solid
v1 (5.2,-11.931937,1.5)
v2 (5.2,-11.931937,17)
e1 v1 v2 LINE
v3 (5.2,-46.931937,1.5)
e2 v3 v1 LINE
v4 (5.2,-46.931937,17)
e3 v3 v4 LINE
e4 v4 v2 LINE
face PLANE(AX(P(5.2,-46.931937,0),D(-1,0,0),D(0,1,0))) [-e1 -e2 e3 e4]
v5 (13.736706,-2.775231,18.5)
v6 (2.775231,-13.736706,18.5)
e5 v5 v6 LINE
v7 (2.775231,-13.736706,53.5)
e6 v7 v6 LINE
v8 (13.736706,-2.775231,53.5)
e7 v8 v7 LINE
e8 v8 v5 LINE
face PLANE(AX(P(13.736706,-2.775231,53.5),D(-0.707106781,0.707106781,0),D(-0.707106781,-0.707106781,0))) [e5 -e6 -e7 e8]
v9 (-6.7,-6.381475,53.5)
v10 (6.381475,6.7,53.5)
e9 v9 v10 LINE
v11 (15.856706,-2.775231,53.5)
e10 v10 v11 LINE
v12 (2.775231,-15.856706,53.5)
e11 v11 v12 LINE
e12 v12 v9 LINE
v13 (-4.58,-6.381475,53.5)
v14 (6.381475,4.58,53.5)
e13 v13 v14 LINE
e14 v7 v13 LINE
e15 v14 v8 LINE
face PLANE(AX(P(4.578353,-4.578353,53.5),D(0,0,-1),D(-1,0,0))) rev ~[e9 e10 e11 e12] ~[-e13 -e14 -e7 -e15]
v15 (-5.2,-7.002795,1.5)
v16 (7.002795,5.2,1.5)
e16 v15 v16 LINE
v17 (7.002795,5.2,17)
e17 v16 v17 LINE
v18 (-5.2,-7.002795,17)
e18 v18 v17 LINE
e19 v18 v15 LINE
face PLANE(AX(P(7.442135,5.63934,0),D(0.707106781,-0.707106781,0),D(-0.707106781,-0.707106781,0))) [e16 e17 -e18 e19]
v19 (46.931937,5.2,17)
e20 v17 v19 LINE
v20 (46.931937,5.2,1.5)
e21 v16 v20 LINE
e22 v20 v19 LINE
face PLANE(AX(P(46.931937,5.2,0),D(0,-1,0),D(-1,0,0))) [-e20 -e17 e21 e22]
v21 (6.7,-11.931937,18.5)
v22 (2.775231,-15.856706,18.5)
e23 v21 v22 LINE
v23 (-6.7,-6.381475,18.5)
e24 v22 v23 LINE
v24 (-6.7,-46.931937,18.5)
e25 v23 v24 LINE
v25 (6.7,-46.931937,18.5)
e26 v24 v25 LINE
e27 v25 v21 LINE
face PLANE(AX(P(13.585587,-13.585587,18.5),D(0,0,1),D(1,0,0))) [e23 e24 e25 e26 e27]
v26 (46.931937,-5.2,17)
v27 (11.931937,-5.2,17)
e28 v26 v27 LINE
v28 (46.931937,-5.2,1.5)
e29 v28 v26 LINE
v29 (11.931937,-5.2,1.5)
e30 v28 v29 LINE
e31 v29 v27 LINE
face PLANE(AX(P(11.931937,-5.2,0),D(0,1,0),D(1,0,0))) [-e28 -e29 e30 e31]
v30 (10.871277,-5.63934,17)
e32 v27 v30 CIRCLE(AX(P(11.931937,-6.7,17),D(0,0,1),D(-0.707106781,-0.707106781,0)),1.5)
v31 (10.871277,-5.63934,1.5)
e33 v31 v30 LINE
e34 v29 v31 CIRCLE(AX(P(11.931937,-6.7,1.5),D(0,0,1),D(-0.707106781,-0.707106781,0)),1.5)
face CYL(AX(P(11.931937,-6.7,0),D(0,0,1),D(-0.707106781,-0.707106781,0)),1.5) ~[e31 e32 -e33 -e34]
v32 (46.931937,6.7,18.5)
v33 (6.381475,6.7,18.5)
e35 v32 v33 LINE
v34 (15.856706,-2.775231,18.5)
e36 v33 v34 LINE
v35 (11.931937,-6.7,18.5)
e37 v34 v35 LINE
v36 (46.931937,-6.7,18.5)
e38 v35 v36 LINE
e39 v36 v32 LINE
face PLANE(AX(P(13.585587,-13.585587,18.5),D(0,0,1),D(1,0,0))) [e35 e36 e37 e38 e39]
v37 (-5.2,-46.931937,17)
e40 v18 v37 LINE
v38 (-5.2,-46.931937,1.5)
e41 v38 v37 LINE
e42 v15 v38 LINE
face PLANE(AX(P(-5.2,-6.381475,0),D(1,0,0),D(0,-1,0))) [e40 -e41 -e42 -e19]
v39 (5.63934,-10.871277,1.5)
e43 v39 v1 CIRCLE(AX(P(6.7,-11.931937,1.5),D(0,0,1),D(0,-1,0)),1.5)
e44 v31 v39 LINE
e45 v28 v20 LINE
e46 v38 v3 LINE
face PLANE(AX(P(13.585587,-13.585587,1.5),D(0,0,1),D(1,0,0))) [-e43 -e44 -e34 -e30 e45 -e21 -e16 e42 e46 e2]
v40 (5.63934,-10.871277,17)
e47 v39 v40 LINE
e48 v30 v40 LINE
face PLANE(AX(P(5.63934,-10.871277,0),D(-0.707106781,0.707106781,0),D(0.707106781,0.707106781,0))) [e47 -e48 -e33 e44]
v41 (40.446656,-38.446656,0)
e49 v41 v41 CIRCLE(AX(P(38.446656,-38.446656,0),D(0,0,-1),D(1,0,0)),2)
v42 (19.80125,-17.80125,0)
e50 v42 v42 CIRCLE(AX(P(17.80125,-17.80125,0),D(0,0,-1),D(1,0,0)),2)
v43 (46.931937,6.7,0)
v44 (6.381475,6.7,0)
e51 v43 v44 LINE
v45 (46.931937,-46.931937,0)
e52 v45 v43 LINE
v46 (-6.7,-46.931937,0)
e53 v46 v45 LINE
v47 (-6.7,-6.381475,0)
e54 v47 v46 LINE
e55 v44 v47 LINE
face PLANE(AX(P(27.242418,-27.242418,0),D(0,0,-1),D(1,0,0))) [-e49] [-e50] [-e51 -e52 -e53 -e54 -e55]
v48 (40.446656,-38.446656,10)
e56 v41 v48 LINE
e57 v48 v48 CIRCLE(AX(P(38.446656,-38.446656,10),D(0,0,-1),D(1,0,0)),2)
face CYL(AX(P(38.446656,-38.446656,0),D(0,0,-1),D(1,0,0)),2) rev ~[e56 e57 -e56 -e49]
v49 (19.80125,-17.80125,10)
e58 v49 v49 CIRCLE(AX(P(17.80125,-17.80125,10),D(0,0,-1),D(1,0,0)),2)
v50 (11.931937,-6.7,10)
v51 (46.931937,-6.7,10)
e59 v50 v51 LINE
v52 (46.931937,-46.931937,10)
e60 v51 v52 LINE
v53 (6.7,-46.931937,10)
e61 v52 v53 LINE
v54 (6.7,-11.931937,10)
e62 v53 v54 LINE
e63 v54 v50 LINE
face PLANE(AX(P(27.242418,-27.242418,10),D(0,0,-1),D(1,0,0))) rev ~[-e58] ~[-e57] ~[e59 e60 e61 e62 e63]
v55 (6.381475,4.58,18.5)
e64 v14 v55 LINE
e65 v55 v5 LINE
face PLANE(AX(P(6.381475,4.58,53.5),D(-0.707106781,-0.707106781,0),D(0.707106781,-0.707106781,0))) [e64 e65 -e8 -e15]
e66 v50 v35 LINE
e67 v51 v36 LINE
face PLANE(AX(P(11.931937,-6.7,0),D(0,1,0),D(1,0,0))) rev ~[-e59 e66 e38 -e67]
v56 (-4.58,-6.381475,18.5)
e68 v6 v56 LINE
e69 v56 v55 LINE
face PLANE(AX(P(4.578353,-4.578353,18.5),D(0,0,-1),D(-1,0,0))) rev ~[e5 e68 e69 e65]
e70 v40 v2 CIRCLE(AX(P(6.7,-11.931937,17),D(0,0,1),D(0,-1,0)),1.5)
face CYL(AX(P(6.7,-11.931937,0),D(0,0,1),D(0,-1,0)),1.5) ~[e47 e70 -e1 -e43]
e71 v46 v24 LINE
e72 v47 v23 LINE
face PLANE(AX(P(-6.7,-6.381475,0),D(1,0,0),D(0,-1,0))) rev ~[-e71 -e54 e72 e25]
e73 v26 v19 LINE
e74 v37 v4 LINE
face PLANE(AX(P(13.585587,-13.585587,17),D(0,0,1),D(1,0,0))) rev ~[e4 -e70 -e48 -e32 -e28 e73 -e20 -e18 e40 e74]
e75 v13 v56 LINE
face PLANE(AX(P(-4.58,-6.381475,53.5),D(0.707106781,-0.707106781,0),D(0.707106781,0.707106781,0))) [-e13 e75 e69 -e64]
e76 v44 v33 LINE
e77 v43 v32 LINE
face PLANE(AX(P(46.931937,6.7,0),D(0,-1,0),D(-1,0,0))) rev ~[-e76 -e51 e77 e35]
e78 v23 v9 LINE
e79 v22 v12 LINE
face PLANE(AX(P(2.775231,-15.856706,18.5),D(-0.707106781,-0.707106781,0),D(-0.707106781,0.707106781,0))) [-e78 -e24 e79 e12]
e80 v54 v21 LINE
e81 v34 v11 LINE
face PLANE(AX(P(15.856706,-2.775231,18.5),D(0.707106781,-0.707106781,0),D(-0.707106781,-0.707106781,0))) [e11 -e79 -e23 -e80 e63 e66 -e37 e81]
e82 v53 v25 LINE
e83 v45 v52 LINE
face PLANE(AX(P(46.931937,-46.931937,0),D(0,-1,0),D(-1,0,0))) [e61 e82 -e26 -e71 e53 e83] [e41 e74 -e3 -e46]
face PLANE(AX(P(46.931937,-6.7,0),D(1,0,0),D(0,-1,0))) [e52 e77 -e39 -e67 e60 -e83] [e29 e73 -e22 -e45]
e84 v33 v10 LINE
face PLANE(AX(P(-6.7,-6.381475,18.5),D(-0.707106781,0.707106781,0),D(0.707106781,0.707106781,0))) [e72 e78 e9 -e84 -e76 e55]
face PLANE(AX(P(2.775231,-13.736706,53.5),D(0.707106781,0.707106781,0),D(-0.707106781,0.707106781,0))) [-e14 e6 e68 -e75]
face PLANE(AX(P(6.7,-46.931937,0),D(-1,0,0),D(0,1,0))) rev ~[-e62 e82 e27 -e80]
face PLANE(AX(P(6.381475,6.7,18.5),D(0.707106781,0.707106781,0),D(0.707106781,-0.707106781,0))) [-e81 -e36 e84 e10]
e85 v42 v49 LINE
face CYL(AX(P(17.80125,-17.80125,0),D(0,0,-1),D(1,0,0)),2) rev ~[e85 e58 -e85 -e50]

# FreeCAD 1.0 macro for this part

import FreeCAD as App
import Part
import Sketcher
from FreeCAD import Vector
Q = App.Units.Quantity


def faces_at(feature, points):
    """Names of the faces that lie closest to the given points."""
    faces = feature.Shape.Faces
    near = lambda p: min(range(len(faces)), key=lambda i: faces[i].distToShape(Part.Vertex(*p))[0])
    return sorted({f"Face{near(p) + 1}" for p in points})

doc = App.newDocument("Part")
body = doc.addObject("PartDesign::Body", "Body")

# Sketch on XY plane
sketch1 = body.newObject("Sketcher::SketchObject", "Sketch")
sketch1.AttachmentSupport = (doc.getObject("XY_Plane"), [""])
sketch1.MapMode = "FlatFace"
sketch1.addGeometry([
    Part.LineSegment(Vector(-6.7, -6.381475, 0), Vector(-6.7, -46.931937, 0)),  # 0
    Part.LineSegment(Vector(-6.7, -46.931937, 0), Vector(6.7, -46.931937, 0)),  # 1
    Part.LineSegment(Vector(6.7, -46.931937, 0), Vector(6.7, -11.931937, 0)),  # 2
    Part.LineSegment(Vector(6.7, -11.931937, 0), Vector(11.931937, -6.7, 0)),  # 3
    Part.LineSegment(Vector(11.931937, -6.7, 0), Vector(46.931937, -6.7, 0)),  # 4
    Part.LineSegment(Vector(46.931937, -6.7, 0), Vector(46.931937, 6.7, 0)),  # 5
    Part.LineSegment(Vector(46.931937, 6.7, 0), Vector(6.381475, 6.7, 0)),  # 6
    Part.LineSegment(Vector(6.381475, 6.7, 0), Vector(-6.7, -6.381475, 0)),  # 7
], False)
sketch1.addConstraint([
    Sketcher.Constraint("Coincident", 0, 2, 1, 1),
    Sketcher.Constraint("Coincident", 1, 2, 2, 1),
    Sketcher.Constraint("Coincident", 2, 2, 3, 1),
    Sketcher.Constraint("Coincident", 3, 2, 4, 1),
    Sketcher.Constraint("Coincident", 4, 2, 5, 1),
    Sketcher.Constraint("Coincident", 5, 2, 6, 1),
    Sketcher.Constraint("Coincident", 6, 2, 7, 1),
    Sketcher.Constraint("Coincident", 7, 2, 0, 1),
    Sketcher.Constraint("Vertical", 0),
    Sketcher.Constraint("Horizontal", 1),
    Sketcher.Constraint("Vertical", 2),
    Sketcher.Constraint("Horizontal", 4),
    Sketcher.Constraint("Vertical", 5),
    Sketcher.Constraint("Horizontal", 6),
    Sketcher.Constraint("Parallel", 3, 7),
    Sketcher.Constraint("Equal", 6, 0),
    Sketcher.Constraint("Equal", 4, 2),
    Sketcher.Constraint("Equal", 1, 5),
    Sketcher.Constraint("DistanceX", 4, 1, 4, 2, Q("35 mm")),
    Sketcher.Constraint("DistanceX", 1, 1, 1, 2, Q("13.4 mm")),
    Sketcher.Constraint("Distance", 7, Q("18.499999 mm")),
    Sketcher.Constraint("DistanceX", 0, 2, -1, 1, Q("6.7 mm")),
    Sketcher.Constraint("DistanceY", 3, 2, -1, 1, Q("6.7 mm")),
    Sketcher.Constraint("DistanceX", 6, 2, 6, 1, Q("40.550462 mm")),
])
pad1 = body.newObject("PartDesign::Pad", "Pad")
pad1.Profile = sketch1
pad1.Length = 18.5
doc.recompute()

thickness = body.newObject("PartDesign::Thickness", "Thickness")
thickness.Base = (pad1, faces_at(pad1, [(0, -46.932, 9.25), (46.932, 0, 9.25)]))
thickness.Value = 1.5
thickness.Reversed = True
thickness.Join = "Arc"

# Sketch on XY plane
sketch2 = body.newObject("Sketcher::SketchObject", "Sketch001")
sketch2.AttachmentSupport = (doc.getObject("XY_Plane"), [""])
sketch2.MapMode = "FlatFace"
sketch2.AttachmentOffset = App.Placement(Vector(0, 0, 18.5), App.Rotation())
sketch2.addGeometry([
    Part.LineSegment(Vector(6.381475, 6.7, 0), Vector(-6.7, -6.381475, 0)),
    Part.LineSegment(Vector(-6.7, -6.381475, 0), Vector(2.775231, -15.856706, 0)),
    Part.LineSegment(Vector(2.775231, -15.856706, 0), Vector(15.856706, -2.775231, 0)),
    Part.LineSegment(Vector(15.856706, -2.775231, 0), Vector(6.381475, 6.7, 0)),
], False)
sketch2.addConstraint([
    Sketcher.Constraint("Coincident", 0, 2, 1, 1),
    Sketcher.Constraint("Coincident", 1, 2, 2, 1),
    Sketcher.Constraint("Coincident", 2, 2, 3, 1),
    Sketcher.Constraint("Coincident", 3, 2, 0, 1),
    Sketcher.Constraint("Perpendicular", 0, 1),
    Sketcher.Constraint("Perpendicular", 1, 2),
    Sketcher.Constraint("Perpendicular", 2, 3),
    Sketcher.Constraint("Angle", 0, Q("-135 deg")),
    Sketcher.Constraint("Distance", 0, Q("18.499999 mm")),
    Sketcher.Constraint("Distance", 1, Q("13.4 mm")),
    Sketcher.Constraint("DistanceX", 0, 2, -1, 1, Q("6.7 mm")),
    Sketcher.Constraint("DistanceY", -1, 1, 3, 2, Q("6.7 mm")),
])
pad2 = body.newObject("PartDesign::Pad", "Pad001")
pad2.Profile = sketch2
pad2.Length = 35

# Sketch on XY plane
sketch3 = body.newObject("Sketcher::SketchObject", "Sketch002")
sketch3.AttachmentSupport = (doc.getObject("XY_Plane"), [""])
sketch3.MapMode = "FlatFace"
sketch3.AttachmentOffset = App.Placement(Vector(0, 0, 53.5), App.Rotation())
sketch3.addGeometry([
    Part.LineSegment(Vector(6.381475, 4.58, 0), Vector(-4.58, -6.381475, 0)),
    Part.LineSegment(Vector(-4.58, -6.381475, 0), Vector(2.775231, -13.736706, 0)),
    Part.LineSegment(Vector(2.775231, -13.736706, 0), Vector(13.736706, -2.775231, 0)),
    Part.LineSegment(Vector(13.736706, -2.775231, 0), Vector(6.381475, 4.58, 0)),
], False)
sketch3.addConstraint([
    Sketcher.Constraint("Coincident", 0, 2, 1, 1),
    Sketcher.Constraint("Coincident", 1, 2, 2, 1),
    Sketcher.Constraint("Coincident", 2, 2, 3, 1),
    Sketcher.Constraint("Coincident", 3, 2, 0, 1),
    Sketcher.Constraint("Perpendicular", 0, 1),
    Sketcher.Constraint("Perpendicular", 1, 2),
    Sketcher.Constraint("Perpendicular", 2, 3),
    Sketcher.Constraint("Angle", 0, Q("-135 deg")),
    Sketcher.Constraint("DistanceX", 0, 2, -1, 1, Q("4.58 mm")),
    Sketcher.Constraint("DistanceY", -1, 1, 3, 2, Q("4.58 mm")),
    Sketcher.Constraint("DistanceX", -1, 1, 1, 2, Q("2.775231 mm")),
    Sketcher.Constraint("Distance", 0, Q("15.501867 mm")),
])
pocket1 = body.newObject("PartDesign::Pocket", "Pocket")
pocket1.Profile = sketch3
pocket1.Length = 35

# Sketch on XY plane
sketch4 = body.newObject("Sketcher::SketchObject", "Sketch003")
sketch4.AttachmentSupport = (doc.getObject("XY_Plane"), [""])
sketch4.MapMode = "FlatFace"
sketch4.addGeometry([
    Part.LineSegment(Vector(6.7, -46.931937, 0), Vector(6.7, -11.931937, 0)),  # 0
    Part.LineSegment(Vector(6.7, -11.931937, 0), Vector(11.931937, -6.7, 0)),  # 1
    Part.LineSegment(Vector(11.931937, -6.7, 0), Vector(46.931937, -6.7, 0)),  # 2
    Part.LineSegment(Vector(46.931937, -6.7, 0), Vector(46.931937, -46.931937, 0)),  # 3
    Part.LineSegment(Vector(46.931937, -46.931937, 0), Vector(6.7, -46.931937, 0)),  # 4
    Part.Circle(Vector(17.80125, -17.80125, 0), Vector(0, 0, 1), 2),  # 5
    Part.Circle(Vector(38.446656, -38.446656, 0), Vector(0, 0, 1), 2),  # 6
], False)
sketch4.addConstraint([
    Sketcher.Constraint("Coincident", 0, 2, 1, 1),
    Sketcher.Constraint("Coincident", 1, 2, 2, 1),
    Sketcher.Constraint("Coincident", 2, 2, 3, 1),
    Sketcher.Constraint("Coincident", 3, 2, 4, 1),
    Sketcher.Constraint("Coincident", 4, 2, 0, 1),
    Sketcher.Constraint("Vertical", 0),
    Sketcher.Constraint("Horizontal", 2),
    Sketcher.Constraint("Vertical", 3),
    Sketcher.Constraint("Horizontal", 4),
    Sketcher.Constraint("Equal", 5, 6),
    Sketcher.Constraint("Equal", 2, 0),
    Sketcher.Constraint("Equal", 4, 3),
    Sketcher.Constraint("Diameter", 5, Q("4 mm")),
    Sketcher.Constraint("DistanceX", 2, 1, 2, 2, Q("35 mm")),
    Sketcher.Constraint("DistanceX", -1, 1, 0, 2, Q("6.7 mm")),
    Sketcher.Constraint("DistanceY", 1, 2, -1, 1, Q("6.7 mm")),
    Sketcher.Constraint("DistanceX", 4, 2, 4, 1, Q("40.231937 mm")),
    Sketcher.Constraint("DistanceX", -1, 1, 5, 3, Q("17.80125 mm")),
    Sketcher.Constraint("DistanceY", 5, 3, -1, 1, Q("17.80125 mm")),
    Sketcher.Constraint("DistanceY", 6, 3, 0, 2, Q("26.514719 mm")),
    Sketcher.Constraint("DistanceX", 1, 2, 6, 3, Q("26.514719 mm")),
])
pad3 = body.newObject("PartDesign::Pad", "Pad002")
pad3.Profile = sketch4
pad3.Length = 10

doc.recompute()
